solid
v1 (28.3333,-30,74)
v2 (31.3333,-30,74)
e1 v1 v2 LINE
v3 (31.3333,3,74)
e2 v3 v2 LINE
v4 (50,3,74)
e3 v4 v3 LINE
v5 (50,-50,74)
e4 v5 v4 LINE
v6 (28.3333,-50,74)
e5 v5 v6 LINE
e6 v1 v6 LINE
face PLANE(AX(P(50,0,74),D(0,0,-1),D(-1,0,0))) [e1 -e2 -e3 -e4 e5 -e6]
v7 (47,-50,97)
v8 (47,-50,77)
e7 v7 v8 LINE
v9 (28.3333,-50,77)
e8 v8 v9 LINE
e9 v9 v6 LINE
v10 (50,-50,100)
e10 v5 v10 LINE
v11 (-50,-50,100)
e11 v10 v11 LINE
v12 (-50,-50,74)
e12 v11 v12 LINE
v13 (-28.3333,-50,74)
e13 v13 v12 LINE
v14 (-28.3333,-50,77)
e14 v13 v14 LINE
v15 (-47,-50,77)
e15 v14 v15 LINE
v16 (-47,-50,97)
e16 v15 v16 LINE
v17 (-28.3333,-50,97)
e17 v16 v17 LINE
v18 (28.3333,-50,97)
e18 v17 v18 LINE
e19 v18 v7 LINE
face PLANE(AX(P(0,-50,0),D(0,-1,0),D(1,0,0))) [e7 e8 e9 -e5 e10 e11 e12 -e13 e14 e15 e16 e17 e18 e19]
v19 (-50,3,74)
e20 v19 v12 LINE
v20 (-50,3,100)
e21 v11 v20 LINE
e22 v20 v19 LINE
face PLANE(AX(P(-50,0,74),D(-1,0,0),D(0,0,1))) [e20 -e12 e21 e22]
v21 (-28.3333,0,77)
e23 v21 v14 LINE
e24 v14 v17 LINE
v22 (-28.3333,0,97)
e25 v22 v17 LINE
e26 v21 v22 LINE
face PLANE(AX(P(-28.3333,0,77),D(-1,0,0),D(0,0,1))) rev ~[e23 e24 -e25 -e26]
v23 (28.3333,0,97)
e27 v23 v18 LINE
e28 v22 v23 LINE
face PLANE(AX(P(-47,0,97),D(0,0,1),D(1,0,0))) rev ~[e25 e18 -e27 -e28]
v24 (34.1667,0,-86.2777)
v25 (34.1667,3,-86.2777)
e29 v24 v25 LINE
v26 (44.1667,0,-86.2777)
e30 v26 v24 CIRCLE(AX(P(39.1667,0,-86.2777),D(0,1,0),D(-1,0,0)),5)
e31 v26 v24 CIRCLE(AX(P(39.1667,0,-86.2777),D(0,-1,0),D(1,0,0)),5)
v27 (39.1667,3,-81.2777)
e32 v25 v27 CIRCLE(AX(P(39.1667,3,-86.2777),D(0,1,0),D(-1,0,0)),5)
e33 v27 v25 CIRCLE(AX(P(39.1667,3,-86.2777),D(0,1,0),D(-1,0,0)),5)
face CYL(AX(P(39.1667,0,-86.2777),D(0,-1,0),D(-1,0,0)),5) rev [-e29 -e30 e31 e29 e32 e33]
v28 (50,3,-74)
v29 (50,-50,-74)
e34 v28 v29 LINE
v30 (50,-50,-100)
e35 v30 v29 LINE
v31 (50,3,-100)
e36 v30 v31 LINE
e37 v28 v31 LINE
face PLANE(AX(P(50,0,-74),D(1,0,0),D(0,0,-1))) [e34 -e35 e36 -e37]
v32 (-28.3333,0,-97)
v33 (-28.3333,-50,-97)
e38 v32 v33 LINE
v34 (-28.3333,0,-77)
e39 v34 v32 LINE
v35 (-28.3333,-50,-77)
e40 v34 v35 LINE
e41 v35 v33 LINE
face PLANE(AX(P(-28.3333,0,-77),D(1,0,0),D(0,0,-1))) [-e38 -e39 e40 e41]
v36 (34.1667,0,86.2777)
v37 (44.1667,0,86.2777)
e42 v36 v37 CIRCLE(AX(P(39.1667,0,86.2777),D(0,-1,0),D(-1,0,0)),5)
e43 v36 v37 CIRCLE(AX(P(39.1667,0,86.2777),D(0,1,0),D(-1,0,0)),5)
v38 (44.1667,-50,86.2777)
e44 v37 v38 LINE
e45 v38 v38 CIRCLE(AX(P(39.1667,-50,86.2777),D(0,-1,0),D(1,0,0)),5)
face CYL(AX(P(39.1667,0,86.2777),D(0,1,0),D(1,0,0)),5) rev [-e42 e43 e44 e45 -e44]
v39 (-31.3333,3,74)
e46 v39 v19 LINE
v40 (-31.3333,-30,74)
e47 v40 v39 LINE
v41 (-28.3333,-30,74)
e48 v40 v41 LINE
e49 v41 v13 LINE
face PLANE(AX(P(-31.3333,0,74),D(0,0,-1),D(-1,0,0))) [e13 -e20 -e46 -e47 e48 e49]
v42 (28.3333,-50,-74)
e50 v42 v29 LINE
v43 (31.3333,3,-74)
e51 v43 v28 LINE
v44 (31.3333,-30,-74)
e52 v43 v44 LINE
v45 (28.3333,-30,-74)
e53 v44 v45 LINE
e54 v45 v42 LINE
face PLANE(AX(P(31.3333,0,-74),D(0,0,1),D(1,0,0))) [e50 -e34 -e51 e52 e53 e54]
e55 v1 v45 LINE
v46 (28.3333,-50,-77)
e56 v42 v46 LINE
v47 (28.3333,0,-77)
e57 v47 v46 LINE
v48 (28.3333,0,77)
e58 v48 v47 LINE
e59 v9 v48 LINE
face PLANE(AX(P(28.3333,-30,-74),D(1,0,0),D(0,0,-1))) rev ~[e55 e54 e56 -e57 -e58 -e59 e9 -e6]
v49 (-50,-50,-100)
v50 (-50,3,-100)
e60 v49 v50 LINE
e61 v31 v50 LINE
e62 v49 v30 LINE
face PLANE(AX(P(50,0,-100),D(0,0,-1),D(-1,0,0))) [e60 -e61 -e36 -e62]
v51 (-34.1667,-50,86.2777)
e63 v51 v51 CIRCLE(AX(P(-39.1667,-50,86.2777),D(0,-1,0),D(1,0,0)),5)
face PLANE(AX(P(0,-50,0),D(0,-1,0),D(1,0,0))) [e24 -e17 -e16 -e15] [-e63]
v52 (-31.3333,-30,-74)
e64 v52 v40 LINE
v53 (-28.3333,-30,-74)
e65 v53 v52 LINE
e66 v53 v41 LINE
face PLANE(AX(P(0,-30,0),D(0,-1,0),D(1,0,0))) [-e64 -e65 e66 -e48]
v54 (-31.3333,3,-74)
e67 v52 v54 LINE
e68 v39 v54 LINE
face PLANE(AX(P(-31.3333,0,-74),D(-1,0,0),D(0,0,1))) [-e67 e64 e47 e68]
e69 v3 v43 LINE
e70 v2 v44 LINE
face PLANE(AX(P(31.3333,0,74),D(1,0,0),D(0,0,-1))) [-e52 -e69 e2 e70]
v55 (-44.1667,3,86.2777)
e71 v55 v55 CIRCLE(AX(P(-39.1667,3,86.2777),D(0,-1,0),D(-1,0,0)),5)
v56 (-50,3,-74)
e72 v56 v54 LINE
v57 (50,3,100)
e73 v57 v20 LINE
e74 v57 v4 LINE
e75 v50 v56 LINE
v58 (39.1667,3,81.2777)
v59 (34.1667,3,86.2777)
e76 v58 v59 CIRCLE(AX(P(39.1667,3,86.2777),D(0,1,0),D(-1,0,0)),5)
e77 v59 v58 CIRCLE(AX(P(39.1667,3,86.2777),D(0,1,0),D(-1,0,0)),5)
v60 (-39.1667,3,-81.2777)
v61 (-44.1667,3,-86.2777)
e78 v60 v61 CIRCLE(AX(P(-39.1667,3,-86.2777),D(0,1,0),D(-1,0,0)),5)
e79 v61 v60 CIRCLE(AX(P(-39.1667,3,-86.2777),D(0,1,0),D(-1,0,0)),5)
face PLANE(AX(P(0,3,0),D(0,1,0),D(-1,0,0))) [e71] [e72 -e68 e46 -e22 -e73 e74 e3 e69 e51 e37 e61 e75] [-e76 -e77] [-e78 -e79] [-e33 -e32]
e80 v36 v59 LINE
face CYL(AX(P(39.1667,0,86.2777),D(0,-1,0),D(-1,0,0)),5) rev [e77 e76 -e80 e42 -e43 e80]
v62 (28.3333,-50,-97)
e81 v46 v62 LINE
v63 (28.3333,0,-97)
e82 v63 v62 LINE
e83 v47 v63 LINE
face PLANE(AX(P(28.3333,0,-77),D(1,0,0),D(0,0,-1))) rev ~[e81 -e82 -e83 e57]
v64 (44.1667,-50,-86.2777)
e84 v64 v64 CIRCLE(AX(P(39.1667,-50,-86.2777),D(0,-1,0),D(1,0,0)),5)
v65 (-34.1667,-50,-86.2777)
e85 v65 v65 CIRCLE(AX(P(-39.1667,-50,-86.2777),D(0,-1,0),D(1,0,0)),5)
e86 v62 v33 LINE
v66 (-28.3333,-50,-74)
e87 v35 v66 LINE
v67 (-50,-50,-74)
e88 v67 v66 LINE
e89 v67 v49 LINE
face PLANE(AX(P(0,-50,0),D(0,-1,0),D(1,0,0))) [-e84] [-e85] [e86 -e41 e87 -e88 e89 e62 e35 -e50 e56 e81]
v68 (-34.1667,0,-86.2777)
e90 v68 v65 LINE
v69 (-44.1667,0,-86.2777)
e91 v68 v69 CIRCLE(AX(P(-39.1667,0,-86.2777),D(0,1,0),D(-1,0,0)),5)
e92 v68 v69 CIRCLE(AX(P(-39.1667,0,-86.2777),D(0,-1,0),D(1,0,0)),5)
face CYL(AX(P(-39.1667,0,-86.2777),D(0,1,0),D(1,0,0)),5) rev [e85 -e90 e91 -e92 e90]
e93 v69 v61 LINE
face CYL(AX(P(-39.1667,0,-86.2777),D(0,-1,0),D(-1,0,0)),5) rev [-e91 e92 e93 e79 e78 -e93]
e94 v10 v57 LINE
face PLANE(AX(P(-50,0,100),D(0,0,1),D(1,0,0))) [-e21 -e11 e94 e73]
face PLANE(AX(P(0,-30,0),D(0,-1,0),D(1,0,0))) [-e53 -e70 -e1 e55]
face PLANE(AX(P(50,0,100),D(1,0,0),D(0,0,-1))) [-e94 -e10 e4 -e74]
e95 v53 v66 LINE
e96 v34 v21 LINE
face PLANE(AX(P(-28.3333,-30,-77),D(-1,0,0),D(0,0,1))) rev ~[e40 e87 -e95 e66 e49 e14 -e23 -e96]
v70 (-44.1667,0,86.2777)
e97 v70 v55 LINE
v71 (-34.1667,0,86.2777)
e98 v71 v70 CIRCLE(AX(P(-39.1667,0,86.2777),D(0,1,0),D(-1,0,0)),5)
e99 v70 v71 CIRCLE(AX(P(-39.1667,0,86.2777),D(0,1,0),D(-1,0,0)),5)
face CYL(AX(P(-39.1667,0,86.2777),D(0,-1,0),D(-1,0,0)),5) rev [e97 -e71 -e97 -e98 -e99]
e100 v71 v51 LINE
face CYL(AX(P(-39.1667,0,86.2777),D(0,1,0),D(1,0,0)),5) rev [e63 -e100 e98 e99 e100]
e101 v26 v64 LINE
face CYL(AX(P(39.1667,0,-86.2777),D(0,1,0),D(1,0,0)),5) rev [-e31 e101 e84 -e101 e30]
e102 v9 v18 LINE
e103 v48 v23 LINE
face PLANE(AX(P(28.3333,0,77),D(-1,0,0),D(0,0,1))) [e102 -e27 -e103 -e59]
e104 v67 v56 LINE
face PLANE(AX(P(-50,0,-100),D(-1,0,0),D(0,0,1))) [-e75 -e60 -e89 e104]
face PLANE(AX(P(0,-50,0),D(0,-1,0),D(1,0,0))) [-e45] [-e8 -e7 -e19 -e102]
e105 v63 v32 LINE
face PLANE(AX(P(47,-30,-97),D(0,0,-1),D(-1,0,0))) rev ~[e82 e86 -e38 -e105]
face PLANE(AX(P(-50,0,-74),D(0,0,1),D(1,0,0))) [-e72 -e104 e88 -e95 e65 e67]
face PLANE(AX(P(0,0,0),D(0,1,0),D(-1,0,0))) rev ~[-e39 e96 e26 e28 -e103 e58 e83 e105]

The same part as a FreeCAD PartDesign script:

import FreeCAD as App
import Part
import Sketcher
Q = App.Units.Quantity


def add_polygon(sketch, points):
    """Adds a closed chain of lines whose ends are joined by coincident constraints."""
    first, n = sketch.GeometryCount, len(points)
    for a, b in zip(points, points[1:] + points[:1]):
        sketch.addGeometry(Part.LineSegment(App.Vector(*a, 0), App.Vector(*b, 0)), False)
    for i in range(n):
        sketch.addConstraint(Sketcher.Constraint("Coincident", first + i, 2, first + (i + 1) % n, 1))

doc = App.newDocument("Part")
body = doc.addObject("PartDesign::Body", "Body")

sketch1 = body.newObject("Sketcher::SketchObject", "Sketch")
sketch1.AttachmentSupport = (doc.getObject("XZ_Plane"), [""])
sketch1.MapMode = "FlatFace"
add_polygon(sketch1, [(-50, 100), (50, 100), (50, 74), (31, 74), (31, -74), (50, -74), (50, -100), (-50, -100), (-50, -74), (-31, -74), (-31, 74), (-50, 74)])
sketch1.addGeometry(Part.Circle(App.Vector(-39, 86, 0), App.Vector(0, 0, 1), 5), False)
sketch1.addGeometry(Part.Circle(App.Vector(39, 86, 0), App.Vector(0, 0, 1), 5), False)
sketch1.addGeometry(Part.Circle(App.Vector(-39, -86, 0), App.Vector(0, 0, 1), 5), False)
sketch1.addGeometry(Part.Circle(App.Vector(39, -86, 0), App.Vector(0, 0, 1), 5), False)
sketch1.addConstraint(Sketcher.Constraint("Horizontal", 0))
sketch1.addConstraint(Sketcher.Constraint("Vertical", 1))
sketch1.addConstraint(Sketcher.Constraint("Horizontal", 2))
sketch1.addConstraint(Sketcher.Constraint("Vertical", 3))
sketch1.addConstraint(Sketcher.Constraint("Horizontal", 4))
sketch1.addConstraint(Sketcher.Constraint("Vertical", 5))
sketch1.addConstraint(Sketcher.Constraint("Horizontal", 6))
sketch1.addConstraint(Sketcher.Constraint("Vertical", 7))
sketch1.addConstraint(Sketcher.Constraint("Horizontal", 8))
sketch1.addConstraint(Sketcher.Constraint("Vertical", 9))
sketch1.addConstraint(Sketcher.Constraint("Horizontal", 10))
sketch1.addConstraint(Sketcher.Constraint("Vertical", 11))
sketch1.addConstraint(Sketcher.Constraint("Equal", 12, 13))
sketch1.addConstraint(Sketcher.Constraint("Equal", 13, 14))
sketch1.addConstraint(Sketcher.Constraint("Equal", 14, 15))
sketch1.addConstraint(Sketcher.Constraint("Symmetric", 13, 3, 14, 3, -1, 1))
sketch1.addConstraint(Sketcher.Constraint("Symmetric", 12, 3, 15, 3, -1, 1))
sketch1.addConstraint(Sketcher.Constraint("Symmetric", 0, 2, 6, 2, -1, 1))
sketch1.addConstraint(Sketcher.Constraint("Symmetric", 2, 2, 8, 2, -1, 1))
sketch1.addConstraint(Sketcher.Constraint("Symmetric", 4, 2, 10, 2, -1, 1))
sketch1.addConstraint(Sketcher.Constraint("Symmetric", 12, 3, 13, 3, -2))
sketch1.addConstraint(Sketcher.Constraint("Symmetric", 4, 2, 7, 2, -2))
sketch1.addConstraint(Sketcher.Constraint("Diameter", 12, Q("10 mm")))
sketch1.addConstraint(Sketcher.Constraint("DistanceX", 0, 1, 0, 2, Q("100 mm")))
sketch1.addConstraint(Sketcher.Constraint("DistanceY", -1, 1, 0, 2, Q("100 mm")))
sketch1.addConstraint(Sketcher.Constraint("DistanceY", 1, 2, 1, 1, Q("26 mm")))
sketch1.addConstraint(Sketcher.Constraint("DistanceX", 2, 2, 13, 3, Q("7.8334 mm")))
sketch1.addConstraint(Sketcher.Constraint("DistanceX", 12, 3, 2, 2, Q("70.5 mm")))
sketch1.addConstraint(Sketcher.Constraint("DistanceY", -1, 1, 12, 3, Q("86.2777 mm")))
pad1 = body.newObject("PartDesign::Pad", "Pad")
pad1.Profile = sketch1
pad1.Length = 3
pad1.Reversed = True

sketch2 = body.newObject("Sketcher::SketchObject", "Sketch001")
sketch2.AttachmentSupport = (doc.getObject("XZ_Plane"), [""])
sketch2.MapMode = "FlatFace"
add_polygon(sketch2, [(50, -100), (50, -74), (31, -74), (31, 74), (50, 74), (50, 100), (-50, 100), (-50, 74), (-31, 74), (-31, -74), (-50, -74), (-50, -100)])
add_polygon(sketch2, [(28, 77), (28, -77), (47, -77), (47, -97), (-47, -97), (-47, -77), (-28, -77), (-28, 77), (-47, 77), (-47, 97), (47, 97), (47, 77)])
sketch2.addConstraint(Sketcher.Constraint("Vertical", 0))
sketch2.addConstraint(Sketcher.Constraint("Horizontal", 1))
sketch2.addConstraint(Sketcher.Constraint("Vertical", 2))
sketch2.addConstraint(Sketcher.Constraint("Horizontal", 3))
sketch2.addConstraint(Sketcher.Constraint("Vertical", 4))
sketch2.addConstraint(Sketcher.Constraint("Horizontal", 5))
sketch2.addConstraint(Sketcher.Constraint("Vertical", 6))
sketch2.addConstraint(Sketcher.Constraint("Horizontal", 7))
sketch2.addConstraint(Sketcher.Constraint("Vertical", 8))
sketch2.addConstraint(Sketcher.Constraint("Horizontal", 9))
sketch2.addConstraint(Sketcher.Constraint("Vertical", 10))
sketch2.addConstraint(Sketcher.Constraint("Horizontal", 11))
sketch2.addConstraint(Sketcher.Constraint("Vertical", 12))
sketch2.addConstraint(Sketcher.Constraint("Horizontal", 13))
sketch2.addConstraint(Sketcher.Constraint("Vertical", 14))
sketch2.addConstraint(Sketcher.Constraint("Horizontal", 15))
sketch2.addConstraint(Sketcher.Constraint("Vertical", 16))
sketch2.addConstraint(Sketcher.Constraint("Horizontal", 17))
sketch2.addConstraint(Sketcher.Constraint("Vertical", 18))
sketch2.addConstraint(Sketcher.Constraint("Horizontal", 19))
sketch2.addConstraint(Sketcher.Constraint("Vertical", 20))
sketch2.addConstraint(Sketcher.Constraint("Horizontal", 21))
sketch2.addConstraint(Sketcher.Constraint("Vertical", 22))
sketch2.addConstraint(Sketcher.Constraint("Horizontal", 23))
sketch2.addConstraint(Sketcher.Constraint("Symmetric", 0, 2, 6, 2, -1, 1))
sketch2.addConstraint(Sketcher.Constraint("Symmetric", 2, 2, 8, 2, -1, 1))
sketch2.addConstraint(Sketcher.Constraint("Symmetric", 4, 2, 10, 2, -1, 1))
sketch2.addConstraint(Sketcher.Constraint("Symmetric", 12, 2, 18, 2, -1, 1))
sketch2.addConstraint(Sketcher.Constraint("Symmetric", 14, 2, 20, 2, -1, 1))
sketch2.addConstraint(Sketcher.Constraint("Symmetric", 16, 2, 22, 2, -1, 1))
sketch2.addConstraint(Sketcher.Constraint("Symmetric", 3, 2, 6, 2, -2))
sketch2.addConstraint(Sketcher.Constraint("Symmetric", 13, 2, 16, 2, -2))
sketch2.addConstraint(Sketcher.Constraint("Equal", 9, 13))
sketch2.addConstraint(Sketcher.Constraint("DistanceX", 12, 2, 1, 2, Q("3 mm")))
sketch2.addConstraint(Sketcher.Constraint("DistanceY", 12, 2, 1, 2, Q("3 mm")))
sketch2.addConstraint(Sketcher.Constraint("DistanceY", 11, 2, 14, 2, Q("3 mm")))
sketch2.addConstraint(Sketcher.Constraint("DistanceX", 5, 2, 5, 1, Q("100 mm")))
sketch2.addConstraint(Sketcher.Constraint("DistanceY", 0, 1, 0, 2, Q("26 mm")))
sketch2.addConstraint(Sketcher.Constraint("DistanceY", 2, 1, 2, 2, Q("148 mm")))
sketch2.addConstraint(Sketcher.Constraint("DistanceX", 1, 2, 1, 1, Q("18.6667 mm")))
pad2 = body.newObject("PartDesign::Pad", "Pad001")
pad2.Profile = sketch2
pad2.Length = 30

sketch3 = body.newObject("Sketcher::SketchObject", "Sketch002")
sketch3.AttachmentSupport = (doc.getObject("XZ_Plane"), [""])
sketch3.MapMode = "FlatFace"
sketch3.AttachmentOffset = App.Placement(App.Vector(0, 0, 30), App.Rotation())
add_polygon(sketch3, [(28.3, 74), (50, 74), (50, 100), (-50, 100), (-50, 74), (-28.3, 74), (-28.3, 77), (-47, 77), (-47, 97), (47, 97), (47, 77), (28.3, 77)])
add_polygon(sketch3, [(50, -74), (28.3, -74), (28.3, -77), (47, -77), (47, -97), (-47, -97), (-47, -77), (-28.3, -77), (-28.3, -74), (-50, -74), (-50, -100), (50, -100)])
sketch3.addConstraint(Sketcher.Constraint("Horizontal", 0))
sketch3.addConstraint(Sketcher.Constraint("Vertical", 1))
sketch3.addConstraint(Sketcher.Constraint("Horizontal", 2))
sketch3.addConstraint(Sketcher.Constraint("Vertical", 3))
sketch3.addConstraint(Sketcher.Constraint("Horizontal", 4))
sketch3.addConstraint(Sketcher.Constraint("Vertical", 5))
sketch3.addConstraint(Sketcher.Constraint("Horizontal", 6))
sketch3.addConstraint(Sketcher.Constraint("Vertical", 7))
sketch3.addConstraint(Sketcher.Constraint("Horizontal", 8))
sketch3.addConstraint(Sketcher.Constraint("Vertical", 9))
sketch3.addConstraint(Sketcher.Constraint("Horizontal", 10))
sketch3.addConstraint(Sketcher.Constraint("Vertical", 11))
sketch3.addConstraint(Sketcher.Constraint("Horizontal", 12))
sketch3.addConstraint(Sketcher.Constraint("Vertical", 13))
sketch3.addConstraint(Sketcher.Constraint("Horizontal", 14))
sketch3.addConstraint(Sketcher.Constraint("Vertical", 15))
sketch3.addConstraint(Sketcher.Constraint("Horizontal", 16))
sketch3.addConstraint(Sketcher.Constraint("Vertical", 17))
sketch3.addConstraint(Sketcher.Constraint("Horizontal", 18))
sketch3.addConstraint(Sketcher.Constraint("Vertical", 19))
sketch3.addConstraint(Sketcher.Constraint("Horizontal", 20))
sketch3.addConstraint(Sketcher.Constraint("Vertical", 21))
sketch3.addConstraint(Sketcher.Constraint("Horizontal", 22))
sketch3.addConstraint(Sketcher.Constraint("Vertical", 23))
sketch3.addConstraint(Sketcher.Constraint("Symmetric", 4, 2, 12, 2, -1, 1))
sketch3.addConstraint(Sketcher.Constraint("Symmetric", 6, 2, 14, 2, -1, 1))
sketch3.addConstraint(Sketcher.Constraint("Symmetric", 8, 2, 16, 2, -1, 1))
sketch3.addConstraint(Sketcher.Constraint("Symmetric", 10, 2, 18, 2, -1, 1))
sketch3.addConstraint(Sketcher.Constraint("Symmetric", 0, 2, 20, 2, -1, 1))
sketch3.addConstraint(Sketcher.Constraint("Symmetric", 2, 2, 22, 2, -1, 1))
sketch3.addConstraint(Sketcher.Constraint("Symmetric", 0, 2, 3, 2, -2))
sketch3.addConstraint(Sketcher.Constraint("Symmetric", 6, 2, 9, 2, -2))
sketch3.addConstraint(Sketcher.Constraint("Vertical", 11, 2, 12, 2))
sketch3.addConstraint(Sketcher.Constraint("DistanceX", 2, 2, 2, 1, Q("100 mm")))
sketch3.addConstraint(Sketcher.Constraint("DistanceX", 8, 1, 8, 2, Q("94 mm")))
sketch3.addConstraint(Sketcher.Constraint("DistanceY", 1, 1, 1, 2, Q("26 mm")))
sketch3.addConstraint(Sketcher.Constraint("DistanceY", 5, 1, 5, 2, Q("3 mm")))
sketch3.addConstraint(Sketcher.Constraint("DistanceY", 7, 1, 7, 2, Q("20 mm")))
sketch3.addConstraint(Sketcher.Constraint("DistanceY", -1, 1, 0, 2, Q("74 mm")))
sketch3.addConstraint(Sketcher.Constraint("DistanceX", 0, 1, 0, 2, Q("21.6667 mm")))
pad3 = body.newObject("PartDesign::Pad", "Pad002")
pad3.Profile = sketch3
pad3.Length = 20

sketch4 = body.newObject("Sketcher::SketchObject", "Sketch003")
sketch4.AttachmentSupport = (doc.getObject("XZ_Plane"), [""])
sketch4.MapMode = "FlatFace"
add_polygon(sketch4, [(28, 97), (28, 77), (47, 77), (47, 97)])
sketch4.addGeometry(Part.Circle(App.Vector(39, 86, 0), App.Vector(0, 0, 1), 5), False)
add_polygon(sketch4, [(-28, 77), (-28, 97), (-47, 97), (-47, 77)])
sketch4.addGeometry(Part.Circle(App.Vector(-39, 86, 0), App.Vector(0, 0, 1), 5), False)
add_polygon(sketch4, [(-28, -97), (-28, -77), (-47, -77), (-47, -97)])
sketch4.addGeometry(Part.Circle(App.Vector(-39, -86, 0), App.Vector(0, 0, 1), 5), False)
add_polygon(sketch4, [(28, -77), (28, -97), (47, -97), (47, -77)])
sketch4.addGeometry(Part.Circle(App.Vector(39, -86, 0), App.Vector(0, 0, 1), 5), False)
sketch4.addConstraint(Sketcher.Constraint("Vertical", 0))
sketch4.addConstraint(Sketcher.Constraint("Horizontal", 1))
sketch4.addConstraint(Sketcher.Constraint("Vertical", 2))
sketch4.addConstraint(Sketcher.Constraint("Horizontal", 3))
sketch4.addConstraint(Sketcher.Constraint("Vertical", 5))
sketch4.addConstraint(Sketcher.Constraint("Horizontal", 6))
sketch4.addConstraint(Sketcher.Constraint("Vertical", 7))
sketch4.addConstraint(Sketcher.Constraint("Horizontal", 8))
sketch4.addConstraint(Sketcher.Constraint("Vertical", 10))
sketch4.addConstraint(Sketcher.Constraint("Horizontal", 11))
sketch4.addConstraint(Sketcher.Constraint("Vertical", 12))
sketch4.addConstraint(Sketcher.Constraint("Horizontal", 13))
sketch4.addConstraint(Sketcher.Constraint("Vertical", 15))
sketch4.addConstraint(Sketcher.Constraint("Horizontal", 16))
sketch4.addConstraint(Sketcher.Constraint("Vertical", 17))
sketch4.addConstraint(Sketcher.Constraint("Horizontal", 18))
sketch4.addConstraint(Sketcher.Constraint("Equal", 4, 9))
sketch4.addConstraint(Sketcher.Constraint("Equal", 9, 14))
sketch4.addConstraint(Sketcher.Constraint("Equal", 14, 19))
sketch4.addConstraint(Sketcher.Constraint("Symmetric", 4, 3, 14, 3, -1, 1))
sketch4.addConstraint(Sketcher.Constraint("Symmetric", 9, 3, 19, 3, -1, 1))
sketch4.addConstraint(Sketcher.Constraint("Symmetric", 0, 2, 10, 2, -1, 1))
sketch4.addConstraint(Sketcher.Constraint("Symmetric", 2, 2, 12, 2, -1, 1))
sketch4.addConstraint(Sketcher.Constraint("Symmetric", 5, 2, 15, 2, -1, 1))
sketch4.addConstraint(Sketcher.Constraint("Symmetric", 7, 2, 17, 2, -1, 1))
sketch4.addConstraint(Sketcher.Constraint("Symmetric", 4, 3, 9, 3, -2))
sketch4.addConstraint(Sketcher.Constraint("Symmetric", 3, 2, 5, 2, -2))
sketch4.addConstraint(Sketcher.Constraint("Symmetric", 1, 2, 7, 2, -2))
sketch4.addConstraint(Sketcher.Constraint("Diameter", 4, Q("10 mm")))
sketch4.addConstraint(Sketcher.Constraint("DistanceY", 0, 2, 0, 1, Q("20 mm")))
sketch4.addConstraint(Sketcher.Constraint("DistanceY", -1, 1, 0, 2, Q("77 mm")))
sketch4.addConstraint(Sketcher.Constraint("DistanceX", -1, 1, 1, 2, Q("47 mm")))
sketch4.addConstraint(Sketcher.Constraint("DistanceX", 9, 3, 0, 2, Q("67.5 mm")))
sketch4.addConstraint(Sketcher.Constraint("DistanceX", 1, 1, 1, 2, Q("18.6667 mm")))
sketch4.addConstraint(Sketcher.Constraint("DistanceY", -1, 1, 4, 3, Q("86.2777 mm")))
pad4 = body.newObject("PartDesign::Pad", "Pad003")
pad4.Profile = sketch4
pad4.Length = 50

doc.recompute()
